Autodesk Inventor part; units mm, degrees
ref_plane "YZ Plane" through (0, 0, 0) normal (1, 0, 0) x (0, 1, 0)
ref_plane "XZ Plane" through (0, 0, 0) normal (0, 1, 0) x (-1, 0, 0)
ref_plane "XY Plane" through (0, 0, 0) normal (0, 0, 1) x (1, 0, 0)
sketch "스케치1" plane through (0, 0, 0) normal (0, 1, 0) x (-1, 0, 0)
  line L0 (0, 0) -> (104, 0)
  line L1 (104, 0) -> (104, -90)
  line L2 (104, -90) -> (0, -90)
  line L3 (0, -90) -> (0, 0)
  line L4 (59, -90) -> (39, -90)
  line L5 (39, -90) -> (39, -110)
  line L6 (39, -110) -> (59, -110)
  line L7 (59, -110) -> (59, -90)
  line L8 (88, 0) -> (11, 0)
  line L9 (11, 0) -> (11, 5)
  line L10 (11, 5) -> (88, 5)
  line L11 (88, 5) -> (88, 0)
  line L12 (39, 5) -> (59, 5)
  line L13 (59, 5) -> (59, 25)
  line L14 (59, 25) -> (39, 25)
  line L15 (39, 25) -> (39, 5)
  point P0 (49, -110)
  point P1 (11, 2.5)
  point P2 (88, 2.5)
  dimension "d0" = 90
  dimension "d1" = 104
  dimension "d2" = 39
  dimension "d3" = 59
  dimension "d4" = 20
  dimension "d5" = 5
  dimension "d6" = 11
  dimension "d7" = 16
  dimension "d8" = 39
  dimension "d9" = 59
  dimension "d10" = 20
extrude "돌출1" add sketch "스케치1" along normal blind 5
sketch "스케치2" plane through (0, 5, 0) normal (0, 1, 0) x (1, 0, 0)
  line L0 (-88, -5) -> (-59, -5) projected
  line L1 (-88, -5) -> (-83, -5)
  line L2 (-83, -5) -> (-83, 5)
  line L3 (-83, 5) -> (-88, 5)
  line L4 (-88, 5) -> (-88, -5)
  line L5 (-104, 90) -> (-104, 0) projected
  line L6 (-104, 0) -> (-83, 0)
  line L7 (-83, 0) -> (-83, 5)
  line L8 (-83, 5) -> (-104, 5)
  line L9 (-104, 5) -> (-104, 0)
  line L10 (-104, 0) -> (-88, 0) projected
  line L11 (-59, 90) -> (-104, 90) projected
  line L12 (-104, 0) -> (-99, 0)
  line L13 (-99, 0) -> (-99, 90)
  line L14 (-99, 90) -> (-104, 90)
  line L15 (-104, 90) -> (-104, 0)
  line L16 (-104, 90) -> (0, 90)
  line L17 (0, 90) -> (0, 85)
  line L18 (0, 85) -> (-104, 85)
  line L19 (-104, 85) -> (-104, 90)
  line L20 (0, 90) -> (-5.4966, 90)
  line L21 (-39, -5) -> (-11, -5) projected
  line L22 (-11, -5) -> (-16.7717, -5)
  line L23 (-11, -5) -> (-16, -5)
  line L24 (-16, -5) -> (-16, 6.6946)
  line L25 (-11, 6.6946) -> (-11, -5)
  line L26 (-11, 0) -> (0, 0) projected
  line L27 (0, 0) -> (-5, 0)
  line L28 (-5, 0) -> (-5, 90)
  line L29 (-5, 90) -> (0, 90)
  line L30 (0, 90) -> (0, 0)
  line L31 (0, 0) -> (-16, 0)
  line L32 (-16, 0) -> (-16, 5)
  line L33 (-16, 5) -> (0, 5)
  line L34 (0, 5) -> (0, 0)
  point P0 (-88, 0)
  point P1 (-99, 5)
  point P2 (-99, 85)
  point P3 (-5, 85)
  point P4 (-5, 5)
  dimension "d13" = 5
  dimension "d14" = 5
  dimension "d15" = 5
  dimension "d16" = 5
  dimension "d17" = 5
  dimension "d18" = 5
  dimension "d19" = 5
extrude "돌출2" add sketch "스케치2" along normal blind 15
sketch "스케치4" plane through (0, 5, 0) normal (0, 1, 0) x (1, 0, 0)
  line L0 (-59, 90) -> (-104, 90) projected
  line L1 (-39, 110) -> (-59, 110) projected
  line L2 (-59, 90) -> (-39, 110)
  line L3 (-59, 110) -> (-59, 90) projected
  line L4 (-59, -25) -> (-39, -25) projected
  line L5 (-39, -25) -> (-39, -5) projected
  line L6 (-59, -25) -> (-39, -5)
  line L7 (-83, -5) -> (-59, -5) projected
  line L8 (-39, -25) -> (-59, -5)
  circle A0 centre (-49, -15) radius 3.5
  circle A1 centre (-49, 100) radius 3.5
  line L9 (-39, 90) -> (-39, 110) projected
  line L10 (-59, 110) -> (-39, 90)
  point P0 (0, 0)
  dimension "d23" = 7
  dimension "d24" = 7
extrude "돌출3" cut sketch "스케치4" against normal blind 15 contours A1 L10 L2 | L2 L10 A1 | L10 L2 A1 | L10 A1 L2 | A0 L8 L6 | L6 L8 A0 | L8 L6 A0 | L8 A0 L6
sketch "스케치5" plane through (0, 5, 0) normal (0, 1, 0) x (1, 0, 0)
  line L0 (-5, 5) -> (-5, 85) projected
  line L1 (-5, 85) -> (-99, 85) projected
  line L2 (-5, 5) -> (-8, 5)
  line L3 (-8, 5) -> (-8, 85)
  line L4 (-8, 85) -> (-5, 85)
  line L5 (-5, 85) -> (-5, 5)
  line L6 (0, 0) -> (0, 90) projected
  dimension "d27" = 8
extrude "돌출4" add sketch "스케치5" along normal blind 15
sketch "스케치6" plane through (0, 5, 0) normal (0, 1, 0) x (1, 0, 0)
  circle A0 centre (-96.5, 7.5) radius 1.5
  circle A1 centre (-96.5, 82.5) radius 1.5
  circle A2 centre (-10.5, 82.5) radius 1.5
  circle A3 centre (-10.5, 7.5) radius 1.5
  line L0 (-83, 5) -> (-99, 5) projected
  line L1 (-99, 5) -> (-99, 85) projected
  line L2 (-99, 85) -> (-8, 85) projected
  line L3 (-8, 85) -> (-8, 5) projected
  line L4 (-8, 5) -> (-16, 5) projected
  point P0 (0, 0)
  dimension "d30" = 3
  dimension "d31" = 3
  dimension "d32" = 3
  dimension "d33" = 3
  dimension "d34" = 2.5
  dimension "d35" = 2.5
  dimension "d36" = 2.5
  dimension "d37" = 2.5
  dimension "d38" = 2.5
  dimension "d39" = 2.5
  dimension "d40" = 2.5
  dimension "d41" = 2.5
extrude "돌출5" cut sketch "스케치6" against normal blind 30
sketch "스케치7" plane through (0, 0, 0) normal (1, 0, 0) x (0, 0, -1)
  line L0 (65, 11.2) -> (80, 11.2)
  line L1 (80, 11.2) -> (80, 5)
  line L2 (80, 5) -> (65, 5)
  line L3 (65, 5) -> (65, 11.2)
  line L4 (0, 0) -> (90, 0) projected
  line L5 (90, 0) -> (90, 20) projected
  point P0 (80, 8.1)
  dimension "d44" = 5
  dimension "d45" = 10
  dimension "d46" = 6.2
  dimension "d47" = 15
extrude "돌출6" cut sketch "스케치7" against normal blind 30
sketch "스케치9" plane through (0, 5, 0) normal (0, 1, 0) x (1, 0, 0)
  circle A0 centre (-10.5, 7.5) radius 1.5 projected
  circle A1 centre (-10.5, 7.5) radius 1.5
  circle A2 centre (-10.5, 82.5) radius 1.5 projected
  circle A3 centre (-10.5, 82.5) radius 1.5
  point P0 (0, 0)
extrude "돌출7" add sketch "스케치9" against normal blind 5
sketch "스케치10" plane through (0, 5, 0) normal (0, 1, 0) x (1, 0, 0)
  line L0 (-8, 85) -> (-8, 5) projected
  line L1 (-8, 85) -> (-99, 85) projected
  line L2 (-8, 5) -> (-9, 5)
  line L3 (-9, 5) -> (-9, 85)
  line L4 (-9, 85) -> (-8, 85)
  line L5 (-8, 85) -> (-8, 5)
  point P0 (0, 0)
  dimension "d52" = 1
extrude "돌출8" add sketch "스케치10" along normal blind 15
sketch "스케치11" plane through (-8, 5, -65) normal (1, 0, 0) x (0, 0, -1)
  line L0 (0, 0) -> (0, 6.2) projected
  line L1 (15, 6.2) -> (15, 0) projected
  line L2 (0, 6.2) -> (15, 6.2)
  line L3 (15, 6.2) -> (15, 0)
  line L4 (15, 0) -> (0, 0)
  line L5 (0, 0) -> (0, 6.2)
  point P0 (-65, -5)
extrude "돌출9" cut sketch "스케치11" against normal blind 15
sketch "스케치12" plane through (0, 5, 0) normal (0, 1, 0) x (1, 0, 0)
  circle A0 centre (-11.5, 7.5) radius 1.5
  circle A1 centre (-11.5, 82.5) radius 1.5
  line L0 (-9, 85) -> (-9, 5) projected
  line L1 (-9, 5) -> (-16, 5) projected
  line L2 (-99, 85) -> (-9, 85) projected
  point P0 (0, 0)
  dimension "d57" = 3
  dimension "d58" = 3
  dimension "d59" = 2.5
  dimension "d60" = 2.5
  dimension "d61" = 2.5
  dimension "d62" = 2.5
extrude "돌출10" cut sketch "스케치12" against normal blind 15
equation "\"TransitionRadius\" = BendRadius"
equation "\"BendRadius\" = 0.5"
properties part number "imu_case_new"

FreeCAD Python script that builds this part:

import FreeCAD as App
import Part
import Sketcher

doc = App.newDocument("Part")
params = doc.addObject("Spreadsheet::Sheet", "Params")
for row, (alias, value) in enumerate([
    ("sketch1_width", "11 mm"),
    ("sketch1_width2", "39 mm"),
    ("sketch1_width3", "20 mm"),
    ("sketch1_width4", "16 mm"),
    ("sketch1_height", "90 mm"),
    ("pad1_length", "5 mm"),
    ("sketch2_width", "5 mm"),
    ("sketch2_width2", "16 mm"),
    ("sketch2_width3", "94 mm"),
    ("sketch2_width4", "11 mm"),
    ("sketch2_height", "80 mm"),
    ("pad2_length", "15 mm"),
    ("sketch3_diameter", "7 mm"),
    ("pocket1_length", "15 mm"),
    ("sketch4_width", "3 mm"),
    ("sketch4_height", "80 mm"),
    ("pad3_length", "15 mm"),
    ("sketch5_diameter", "3 mm"),
    ("pocket2_length", "30 mm"),
    ("sketch6_height", "15 mm"),
    ("sketch6_width", "6.2 mm"),
    ("pocket3_length", "30 mm"),
    ("sketch7_diameter", "3 mm"),
    ("pad4_length", "5 mm"),
    ("sketch8_width", "1 mm"),
    ("sketch8_height", "80 mm"),
    ("pad5_length", "15 mm"),
    ("sketch9_height", "15 mm"),
    ("sketch9_width", "6.2 mm"),
    ("pocket4_length", "15 mm"),
    ("sketch10_diameter", "3 mm"),
    ("pocket5_length", "15 mm"),
], start=1):
    params.set(f"A{row}", alias)
    params.set(f"B{row}", "=" + value)
    params.setAlias(f"B{row}", alias)

body = doc.addObject("PartDesign::Body", "Body")

sketch1 = body.newObject("Sketcher::SketchObject", "Sketch")
sketch1.AttachmentSupport = (doc.getObject("XZ_Plane"), [""])
sketch1.MapMode = "FlatFace"
sketch1.addGeometry([
    Part.LineSegment(App.Vector(-11, 0, 0), App.Vector(0, 0, 0)),
    Part.LineSegment(App.Vector(0, 0, 0), App.Vector(0, -90, 0)),
    Part.LineSegment(App.Vector(0, -90, 0), App.Vector(-39, -90, 0)),
    Part.LineSegment(App.Vector(-39, -90, 0), App.Vector(-39, -110, 0)),
    Part.LineSegment(App.Vector(-39, -110, 0), App.Vector(-59, -110, 0)),
    Part.LineSegment(App.Vector(-59, -110, 0), App.Vector(-59, -90, 0)),
    Part.LineSegment(App.Vector(-59, -90, 0), App.Vector(-104, -90, 0)),
    Part.LineSegment(App.Vector(-104, -90, 0), App.Vector(-104, 0, 0)),
    Part.LineSegment(App.Vector(-104, 0, 0), App.Vector(-88, 0, 0)),
    Part.LineSegment(App.Vector(-88, 0, 0), App.Vector(-88, 5, 0)),
    Part.LineSegment(App.Vector(-88, 5, 0), App.Vector(-59, 5, 0)),
    Part.LineSegment(App.Vector(-59, 5, 0), App.Vector(-59, 25, 0)),
    Part.LineSegment(App.Vector(-59, 25, 0), App.Vector(-39, 25, 0)),
    Part.LineSegment(App.Vector(-39, 25, 0), App.Vector(-39, 5, 0)),
    Part.LineSegment(App.Vector(-39, 5, 0), App.Vector(-11, 5, 0)),
    Part.LineSegment(App.Vector(-11, 5, 0), App.Vector(-11, 0, 0)),
], False)
sketch1.addConstraint([
    Sketcher.Constraint("Coincident", 0, 2, 1, 1),
    Sketcher.Constraint("Coincident", 1, 2, 2, 1),
    Sketcher.Constraint("Coincident", 2, 2, 3, 1),
    Sketcher.Constraint("Coincident", 3, 2, 4, 1),
    Sketcher.Constraint("Coincident", 4, 2, 5, 1),
    Sketcher.Constraint("Coincident", 5, 2, 6, 1),
    Sketcher.Constraint("Coincident", 6, 2, 7, 1),
    Sketcher.Constraint("Coincident", 7, 2, 8, 1),
    Sketcher.Constraint("Coincident", 8, 2, 9, 1),
    Sketcher.Constraint("Coincident", 9, 2, 10, 1),
    Sketcher.Constraint("Coincident", 10, 2, 11, 1),
    Sketcher.Constraint("Coincident", 11, 2, 12, 1),
    Sketcher.Constraint("Coincident", 12, 2, 13, 1),
    Sketcher.Constraint("Coincident", 13, 2, 14, 1),
    Sketcher.Constraint("Coincident", 14, 2, 15, 1),
    Sketcher.Constraint("Coincident", 15, 2, 0, 1),
    Sketcher.Constraint("Horizontal", 0),
    Sketcher.Constraint("Vertical", 1),
    Sketcher.Constraint("Horizontal", 2),
    Sketcher.Constraint("Vertical", 3),
    Sketcher.Constraint("Horizontal", 4),
    Sketcher.Constraint("Vertical", 5),
    Sketcher.Constraint("Horizontal", 6),
    Sketcher.Constraint("Vertical", 7),
    Sketcher.Constraint("Horizontal", 8),
    Sketcher.Constraint("Vertical", 9),
    Sketcher.Constraint("Horizontal", 10),
    Sketcher.Constraint("Vertical", 11),
    Sketcher.Constraint("Horizontal", 12),
    Sketcher.Constraint("Vertical", 13),
    Sketcher.Constraint("Horizontal", 14),
    Sketcher.Constraint("Vertical", 15),
    Sketcher.Constraint("Coincident", 0, 2, -1, 1),
    Sketcher.Constraint("PointOnObject", 7, 2, -1),
    Sketcher.Constraint("Horizontal", 2, 2, 5, 2),
    Sketcher.Constraint("Horizontal", 10, 2, 13, 2),
    Sketcher.Constraint("Vertical", 5, 2, 10, 2),
    Sketcher.Constraint("Vertical", 3, 2, 12, 2),
    Sketcher.Constraint("Equal", 12, 3),
    Sketcher.Constraint("Equal", 5, 11),
    Sketcher.Constraint("DistanceX", 0, 1, 0, 2, 11.0),
    Sketcher.Constraint("DistanceX", 2, 2, 2, 1, 39.0),
    Sketcher.Constraint("DistanceX", 4, 2, 4, 1, 20.0),
    Sketcher.Constraint("DistanceX", 8, 1, 8, 2, 16.0),
    Sketcher.Constraint("DistanceY", 1, 2, 1, 1, 90.0),
    Sketcher.Constraint("DistanceY", 9, 1, 9, 2, 5.0),
    Sketcher.Constraint("DistanceX", 6, 2, -1, 1, 104.0),
])
sketch1.setExpression("Constraints[40]", "Params.sketch1_width")
sketch1.setExpression("Constraints[41]", "Params.sketch1_width2")
sketch1.setExpression("Constraints[42]", "Params.sketch1_width3")
sketch1.setExpression("Constraints[43]", "Params.sketch1_width4")
sketch1.setExpression("Constraints[44]", "Params.sketch1_height")
pad1 = body.newObject("PartDesign::Pad", "Pad")
pad1.Profile = sketch1
pad1.setExpression("Length", "Params.pad1_length")
pad1.Reversed = True

sketch2 = body.newObject("Sketcher::SketchObject", "Sketch001")
sketch2.AttachmentSupport = (doc.getObject("XZ_Plane"), [""])
sketch2.MapMode = "FlatFace"
sketch2.AttachmentOffset = App.Placement(App.Vector(0, 0, -5), App.Rotation())
sketch2.addGeometry([
    Part.LineSegment(App.Vector(-88, 0, 0), App.Vector(-88, 5, 0)),
    Part.LineSegment(App.Vector(-88, 5, 0), App.Vector(-83, 5, 0)),
    Part.LineSegment(App.Vector(-83, 5, 0), App.Vector(-83, -5, 0)),
    Part.LineSegment(App.Vector(-83, -5, 0), App.Vector(-99, -5, 0)),
    Part.LineSegment(App.Vector(-99, -5, 0), App.Vector(-99, -85, 0)),
    Part.LineSegment(App.Vector(-99, -85, 0), App.Vector(-5, -85, 0)),
    Part.LineSegment(App.Vector(-5, -85, 0), App.Vector(-5, -5, 0)),
    Part.LineSegment(App.Vector(-5, -5, 0), App.Vector(-16, -5, 0)),
    Part.LineSegment(App.Vector(-16, -5, 0), App.Vector(-16, 5, 0)),
    Part.LineSegment(App.Vector(-16, 5, 0), App.Vector(-11, 5, 0)),
    Part.LineSegment(App.Vector(-11, 5, 0), App.Vector(-11, 0, 0)),
    Part.LineSegment(App.Vector(-11, 0, 0), App.Vector(0, 0, 0)),
    Part.LineSegment(App.Vector(0, 0, 0), App.Vector(0, -90, 0)),
    Part.LineSegment(App.Vector(0, -90, 0), App.Vector(-104, -90, 0)),
    Part.LineSegment(App.Vector(-104, -90, 0), App.Vector(-104, 0, 0)),
    Part.LineSegment(App.Vector(-104, 0, 0), App.Vector(-88, 0, 0)),
], False)
sketch2.addConstraint([
    Sketcher.Constraint("Coincident", 0, 2, 1, 1),
    Sketcher.Constraint("Coincident", 1, 2, 2, 1),
    Sketcher.Constraint("Coincident", 2, 2, 3, 1),
    Sketcher.Constraint("Coincident", 3, 2, 4, 1),
    Sketcher.Constraint("Coincident", 4, 2, 5, 1),
    Sketcher.Constraint("Coincident", 5, 2, 6, 1),
    Sketcher.Constraint("Coincident", 6, 2, 7, 1),
    Sketcher.Constraint("Coincident", 7, 2, 8, 1),
    Sketcher.Constraint("Coincident", 8, 2, 9, 1),
    Sketcher.Constraint("Coincident", 9, 2, 10, 1),
    Sketcher.Constraint("Coincident", 10, 2, 11, 1),
    Sketcher.Constraint("Coincident", 11, 2, 12, 1),
    Sketcher.Constraint("Coincident", 12, 2, 13, 1),
    Sketcher.Constraint("Coincident", 13, 2, 14, 1),
    Sketcher.Constraint("Coincident", 14, 2, 15, 1),
    Sketcher.Constraint("Coincident", 15, 2, 0, 1),
    Sketcher.Constraint("Vertical", 0),
    Sketcher.Constraint("Horizontal", 1),
    Sketcher.Constraint("Vertical", 2),
    Sketcher.Constraint("Horizontal", 3),
    Sketcher.Constraint("Vertical", 4),
    Sketcher.Constraint("Horizontal", 5),
    Sketcher.Constraint("Vertical", 6),
    Sketcher.Constraint("Horizontal", 7),
    Sketcher.Constraint("Vertical", 8),
    Sketcher.Constraint("Horizontal", 9),
    Sketcher.Constraint("Vertical", 10),
    Sketcher.Constraint("Horizontal", 11),
    Sketcher.Constraint("Vertical", 12),
    Sketcher.Constraint("Horizontal", 13),
    Sketcher.Constraint("Vertical", 14),
    Sketcher.Constraint("Horizontal", 15),
    Sketcher.Constraint("Coincident", 11, 2, -1, 1),
    Sketcher.Constraint("PointOnObject", 14, 2, -1),
    Sketcher.Constraint("Horizontal", 3, 2, 6, 2),
    Sketcher.Constraint("Horizontal", 1, 2, 8, 2),
    Sketcher.Constraint("Equal", 1, 9),
    Sketcher.Constraint("Equal", 7, 11),
    Sketcher.Constraint("Equal", 3, 15),
    Sketcher.Constraint("Equal", 9, 0),
    Sketcher.Constraint("DistanceX", 1, 1, 1, 2, 5.0),
    Sketcher.Constraint("DistanceY", 2, 2, -1, 1, 5.0),
    Sketcher.Constraint("DistanceY", 12, 2, 5, 2, 5.0),
    Sketcher.Constraint("DistanceX", 3, 2, 3, 1, 16.0),
    Sketcher.Constraint("DistanceX", 5, 1, 5, 2, 94.0),
    Sketcher.Constraint("DistanceX", 7, 2, 7, 1, 11.0),
    Sketcher.Constraint("DistanceY", 4, 2, 4, 1, 80.0),
])
sketch2.setExpression("Constraints[40]", "Params.sketch2_width")
sketch2.setExpression("Constraints[43]", "Params.sketch2_width2")
sketch2.setExpression("Constraints[44]", "Params.sketch2_width3")
sketch2.setExpression("Constraints[45]", "Params.sketch2_width4")
sketch2.setExpression("Constraints[46]", "Params.sketch2_height")
pad2 = body.newObject("PartDesign::Pad", "Pad001")
pad2.Profile = sketch2
pad2.setExpression("Length", "Params.pad2_length")
pad2.Reversed = True

sketch3 = body.newObject("Sketcher::SketchObject", "Sketch002")
sketch3.AttachmentSupport = (doc.getObject("XZ_Plane"), [""])
sketch3.MapMode = "FlatFace"
sketch3.AttachmentOffset = App.Placement(App.Vector(0, 0, -5), App.Rotation())
sketch3.addGeometry([
    Part.Circle(App.Vector(-49, -100, 0), App.Vector(0, 0, 1), 3.5),
    Part.Circle(App.Vector(-49, 15, 0), App.Vector(0, 0, 1), 3.5),
], False)
sketch3.addConstraint([
    Sketcher.Constraint("Equal", 0, 1),
    Sketcher.Constraint("Vertical", 0, 3, 1, 3),
    Sketcher.Constraint("Diameter", 0, 7.0),
    Sketcher.Constraint("DistanceX", 0, 3, -1, 1, 49.0),
    Sketcher.Constraint("DistanceY", 0, 3, -1, 1, 100.0),
    Sketcher.Constraint("DistanceY", -1, 1, 1, 3, 15.0),
])
sketch3.setExpression("Constraints[2]", "Params.sketch3_diameter")
pocket1 = body.newObject("PartDesign::Pocket", "Pocket")
pocket1.Profile = sketch3
pocket1.setExpression("Length", "Params.pocket1_length")
pocket1.Reversed = True

sketch4 = body.newObject("Sketcher::SketchObject", "Sketch003")
sketch4.AttachmentSupport = (doc.getObject("XZ_Plane"), [""])
sketch4.MapMode = "FlatFace"
sketch4.AttachmentOffset = App.Placement(App.Vector(0, 0, -5), App.Rotation())
sketch4.addGeometry([
    Part.LineSegment(App.Vector(-8, -5, 0), App.Vector(-5, -5, 0)),
    Part.LineSegment(App.Vector(-5, -5, 0), App.Vector(-5, -85, 0)),
    Part.LineSegment(App.Vector(-5, -85, 0), App.Vector(-8, -85, 0)),
    Part.LineSegment(App.Vector(-8, -85, 0), App.Vector(-8, -5, 0)),
], False)
sketch4.addConstraint([
    Sketcher.Constraint("Coincident", 0, 2, 1, 1),
    Sketcher.Constraint("Coincident", 1, 2, 2, 1),
    Sketcher.Constraint("Coincident", 2, 2, 3, 1),
    Sketcher.Constraint("Coincident", 3, 2, 0, 1),
    Sketcher.Constraint("Horizontal", 0),
    Sketcher.Constraint("Vertical", 1),
    Sketcher.Constraint("Horizontal", 2),
    Sketcher.Constraint("Vertical", 3),
    Sketcher.Constraint("DistanceX", 2, 2, -1, 1, 8.0),
    Sketcher.Constraint("DistanceX", 0, 1, 0, 2, 3.0),
    Sketcher.Constraint("DistanceY", 1, 2, 1, 1, 80.0),
    Sketcher.Constraint("DistanceY", 0, 2, -1, 1, 5.0),
])
sketch4.setExpression("Constraints[9]", "Params.sketch4_width")
sketch4.setExpression("Constraints[10]", "Params.sketch4_height")
pad3 = body.newObject("PartDesign::Pad", "Pad002")
pad3.Profile = sketch4
pad3.setExpression("Length", "Params.pad3_length")
pad3.Reversed = True

sketch5 = body.newObject("Sketcher::SketchObject", "Sketch004")
sketch5.AttachmentSupport = (doc.getObject("XZ_Plane"), [""])
sketch5.MapMode = "FlatFace"
sketch5.AttachmentOffset = App.Placement(App.Vector(0, 0, -5), App.Rotation())
sketch5.addGeometry([
    Part.Circle(App.Vector(-96.5, -7.5, 0), App.Vector(0, 0, 1), 1.5),
    Part.Circle(App.Vector(-96.5, -82.5, 0), App.Vector(0, 0, 1), 1.5),
    Part.Circle(App.Vector(-10.5, -82.5, 0), App.Vector(0, 0, 1), 1.5),
    Part.Circle(App.Vector(-10.5, -7.5, 0), App.Vector(0, 0, 1), 1.5),
], False)
sketch5.addConstraint([
    Sketcher.Constraint("Equal", 0, 1),
    Sketcher.Constraint("Equal", 1, 2),
    Sketcher.Constraint("Equal", 2, 3),
    Sketcher.Constraint("Horizontal", 1, 3, 2, 3),
    Sketcher.Constraint("Horizontal", 0, 3, 3, 3),
    Sketcher.Constraint("Vertical", 0, 3, 1, 3),
    Sketcher.Constraint("Vertical", 2, 3, 3, 3),
    Sketcher.Constraint("Diameter", 0, 3.0),
    Sketcher.Constraint("DistanceY", 1, 3, 0, 3, 75.0),
    Sketcher.Constraint("DistanceX", 1, 3, 2, 3, 86.0),
    Sketcher.Constraint("DistanceX", 0, 3, -1, 1, 96.5),
    Sketcher.Constraint("DistanceY", 0, 3, -1, 1, 7.5),
])
sketch5.setExpression("Constraints[7]", "Params.sketch5_diameter")
pocket2 = body.newObject("PartDesign::Pocket", "Pocket001")
pocket2.Profile = sketch5
pocket2.setExpression("Length", "Params.pocket2_length")
pocket2.Reversed = True

sketch6 = body.newObject("Sketcher::SketchObject", "Sketch005")
sketch6.AttachmentSupport = (doc.getObject("YZ_Plane"), [""])
sketch6.MapMode = "FlatFace"
sketch6.addGeometry([
    Part.LineSegment(App.Vector(11, -80, 0), App.Vector(11, -65, 0)),
    Part.LineSegment(App.Vector(11, -65, 0), App.Vector(5, -65, 0)),
    Part.LineSegment(App.Vector(5, -65, 0), App.Vector(5, -80, 0)),
    Part.LineSegment(App.Vector(5, -80, 0), App.Vector(11, -80, 0)),
], False)
sketch6.addConstraint([
    Sketcher.Constraint("Coincident", 0, 2, 1, 1),
    Sketcher.Constraint("Coincident", 1, 2, 2, 1),
    Sketcher.Constraint("Coincident", 2, 2, 3, 1),
    Sketcher.Constraint("Coincident", 3, 2, 0, 1),
    Sketcher.Constraint("Vertical", 0),
    Sketcher.Constraint("Horizontal", 1),
    Sketcher.Constraint("Vertical", 2),
    Sketcher.Constraint("Horizontal", 3),
    Sketcher.Constraint("DistanceY", 0, 1, 0, 2, 15.0),
    Sketcher.Constraint("DistanceX", 1, 2, 1, 1, 6.2),
    Sketcher.Constraint("DistanceX", -1, 1, 1, 2, 5.0),
    Sketcher.Constraint("DistanceY", 0, 2, -1, 1, 65.0),
])
sketch6.setExpression("Constraints[8]", "Params.sketch6_height")
sketch6.setExpression("Constraints[9]", "Params.sketch6_width")
pocket3 = body.newObject("PartDesign::Pocket", "Pocket002")
pocket3.Profile = sketch6
pocket3.setExpression("Length", "Params.pocket3_length")

sketch7 = body.newObject("Sketcher::SketchObject", "Sketch006")
sketch7.AttachmentSupport = (doc.getObject("XZ_Plane"), [""])
sketch7.MapMode = "FlatFace"
sketch7.AttachmentOffset = App.Placement(App.Vector(0, 0, -5), App.Rotation())
sketch7.addGeometry([
    Part.Circle(App.Vector(-10.5, -7.5, 0), App.Vector(0, 0, 1), 1.5),
    Part.Circle(App.Vector(-10.5, -82.5, 0), App.Vector(0, 0, 1), 1.5),
], False)
sketch7.addConstraint([
    Sketcher.Constraint("Equal", 0, 1),
    Sketcher.Constraint("Vertical", 0, 3, 1, 3),
    Sketcher.Constraint("Diameter", 0, 3.0),
    Sketcher.Constraint("DistanceY", 1, 3, 0, 3, 75.0),
    Sketcher.Constraint("DistanceX", 0, 3, -1, 1, 10.5),
    Sketcher.Constraint("DistanceY", 0, 3, -1, 1, 7.5),
])
sketch7.setExpression("Constraints[2]", "Params.sketch7_diameter")
pad4 = body.newObject("PartDesign::Pad", "Pad003")
pad4.Profile = sketch7
pad4.setExpression("Length", "Params.pad4_length")

sketch8 = body.newObject("Sketcher::SketchObject", "Sketch007")
sketch8.AttachmentSupport = (doc.getObject("XZ_Plane"), [""])
sketch8.MapMode = "FlatFace"
sketch8.AttachmentOffset = App.Placement(App.Vector(0, 0, -5), App.Rotation())
sketch8.addGeometry([
    Part.LineSegment(App.Vector(-8, -5, 0), App.Vector(-8, -85, 0)),
    Part.LineSegment(App.Vector(-8, -85, 0), App.Vector(-9, -85, 0)),
    Part.LineSegment(App.Vector(-9, -85, 0), App.Vector(-9, -5, 0)),
    Part.LineSegment(App.Vector(-9, -5, 0), App.Vector(-8, -5, 0)),
], False)
sketch8.addConstraint([
    Sketcher.Constraint("Coincident", 0, 2, 1, 1),
    Sketcher.Constraint("Coincident", 1, 2, 2, 1),
    Sketcher.Constraint("Coincident", 2, 2, 3, 1),
    Sketcher.Constraint("Coincident", 3, 2, 0, 1),
    Sketcher.Constraint("Vertical", 0),
    Sketcher.Constraint("Horizontal", 1),
    Sketcher.Constraint("Vertical", 2),
    Sketcher.Constraint("Horizontal", 3),
    Sketcher.Constraint("DistanceX", 1, 2, 1, 1, 1.0),
    Sketcher.Constraint("DistanceY", 0, 2, 0, 1, 80.0),
    Sketcher.Constraint("DistanceX", 0, 2, -1, 1, 8.0),
    Sketcher.Constraint("DistanceY", 0, 2, -1, 1, 85.0),
])
sketch8.setExpression("Constraints[8]", "Params.sketch8_width")
sketch8.setExpression("Constraints[9]", "Params.sketch8_height")
pad5 = body.newObject("PartDesign::Pad", "Pad004")
pad5.Profile = sketch8
pad5.setExpression("Length", "Params.pad5_length")
pad5.Reversed = True

sketch9 = body.newObject("Sketcher::SketchObject", "Sketch008")
sketch9.AttachmentSupport = (doc.getObject("YZ_Plane"), [""])
sketch9.MapMode = "FlatFace"
sketch9.AttachmentOffset = App.Placement(App.Vector(0, 0, -8), App.Rotation())
sketch9.addGeometry([
    Part.LineSegment(App.Vector(11, -65, 0), App.Vector(5, -65, 0)),
    Part.LineSegment(App.Vector(5, -65, 0), App.Vector(5, -80, 0)),
    Part.LineSegment(App.Vector(5, -80, 0), App.Vector(11, -80, 0)),
    Part.LineSegment(App.Vector(11, -80, 0), App.Vector(11, -65, 0)),
], False)
sketch9.addConstraint([
    Sketcher.Constraint("Coincident", 0, 2, 1, 1),
    Sketcher.Constraint("Coincident", 1, 2, 2, 1),
    Sketcher.Constraint("Coincident", 2, 2, 3, 1),
    Sketcher.Constraint("Coincident", 3, 2, 0, 1),
    Sketcher.Constraint("Horizontal", 0),
    Sketcher.Constraint("Vertical", 1),
    Sketcher.Constraint("Horizontal", 2),
    Sketcher.Constraint("Vertical", 3),
    Sketcher.Constraint("DistanceY", 1, 2, 1, 1, 15.0),
    Sketcher.Constraint("DistanceX", 0, 2, 0, 1, 6.2),
    Sketcher.Constraint("DistanceX", -1, 1, 0, 2, 5.0),
    Sketcher.Constraint("DistanceY", 0, 2, -1, 1, 65.0),
])
sketch9.setExpression("Constraints[8]", "Params.sketch9_height")
sketch9.setExpression("Constraints[9]", "Params.sketch9_width")
pocket4 = body.newObject("PartDesign::Pocket", "Pocket003")
pocket4.Profile = sketch9
pocket4.setExpression("Length", "Params.pocket4_length")

sketch10 = body.newObject("Sketcher::SketchObject", "Sketch009")
sketch10.AttachmentSupport = (doc.getObject("XZ_Plane"), [""])
sketch10.MapMode = "FlatFace"
sketch10.AttachmentOffset = App.Placement(App.Vector(0, 0, -5), App.Rotation())
sketch10.addGeometry([
    Part.Circle(App.Vector(-11.5, -7.5, 0), App.Vector(0, 0, 1), 1.5),
    Part.Circle(App.Vector(-11.5, -82.5, 0), App.Vector(0, 0, 1), 1.5),
], False)
sketch10.addConstraint([
    Sketcher.Constraint("Equal", 0, 1),
    Sketcher.Constraint("Vertical", 0, 3, 1, 3),
    Sketcher.Constraint("Diameter", 0, 3.0),
    Sketcher.Constraint("DistanceY", 1, 3, 0, 3, 75.0),
    Sketcher.Constraint("DistanceX", 0, 3, -1, 1, 11.5),
    Sketcher.Constraint("DistanceY", 0, 3, -1, 1, 7.5),
])
sketch10.setExpression("Constraints[2]", "Params.sketch10_diameter")
pocket5 = body.newObject("PartDesign::Pocket", "Pocket004")
pocket5.Profile = sketch10
pocket5.setExpression("Length", "Params.pocket5_length")
pocket5.Reversed = True

doc.recompute()
